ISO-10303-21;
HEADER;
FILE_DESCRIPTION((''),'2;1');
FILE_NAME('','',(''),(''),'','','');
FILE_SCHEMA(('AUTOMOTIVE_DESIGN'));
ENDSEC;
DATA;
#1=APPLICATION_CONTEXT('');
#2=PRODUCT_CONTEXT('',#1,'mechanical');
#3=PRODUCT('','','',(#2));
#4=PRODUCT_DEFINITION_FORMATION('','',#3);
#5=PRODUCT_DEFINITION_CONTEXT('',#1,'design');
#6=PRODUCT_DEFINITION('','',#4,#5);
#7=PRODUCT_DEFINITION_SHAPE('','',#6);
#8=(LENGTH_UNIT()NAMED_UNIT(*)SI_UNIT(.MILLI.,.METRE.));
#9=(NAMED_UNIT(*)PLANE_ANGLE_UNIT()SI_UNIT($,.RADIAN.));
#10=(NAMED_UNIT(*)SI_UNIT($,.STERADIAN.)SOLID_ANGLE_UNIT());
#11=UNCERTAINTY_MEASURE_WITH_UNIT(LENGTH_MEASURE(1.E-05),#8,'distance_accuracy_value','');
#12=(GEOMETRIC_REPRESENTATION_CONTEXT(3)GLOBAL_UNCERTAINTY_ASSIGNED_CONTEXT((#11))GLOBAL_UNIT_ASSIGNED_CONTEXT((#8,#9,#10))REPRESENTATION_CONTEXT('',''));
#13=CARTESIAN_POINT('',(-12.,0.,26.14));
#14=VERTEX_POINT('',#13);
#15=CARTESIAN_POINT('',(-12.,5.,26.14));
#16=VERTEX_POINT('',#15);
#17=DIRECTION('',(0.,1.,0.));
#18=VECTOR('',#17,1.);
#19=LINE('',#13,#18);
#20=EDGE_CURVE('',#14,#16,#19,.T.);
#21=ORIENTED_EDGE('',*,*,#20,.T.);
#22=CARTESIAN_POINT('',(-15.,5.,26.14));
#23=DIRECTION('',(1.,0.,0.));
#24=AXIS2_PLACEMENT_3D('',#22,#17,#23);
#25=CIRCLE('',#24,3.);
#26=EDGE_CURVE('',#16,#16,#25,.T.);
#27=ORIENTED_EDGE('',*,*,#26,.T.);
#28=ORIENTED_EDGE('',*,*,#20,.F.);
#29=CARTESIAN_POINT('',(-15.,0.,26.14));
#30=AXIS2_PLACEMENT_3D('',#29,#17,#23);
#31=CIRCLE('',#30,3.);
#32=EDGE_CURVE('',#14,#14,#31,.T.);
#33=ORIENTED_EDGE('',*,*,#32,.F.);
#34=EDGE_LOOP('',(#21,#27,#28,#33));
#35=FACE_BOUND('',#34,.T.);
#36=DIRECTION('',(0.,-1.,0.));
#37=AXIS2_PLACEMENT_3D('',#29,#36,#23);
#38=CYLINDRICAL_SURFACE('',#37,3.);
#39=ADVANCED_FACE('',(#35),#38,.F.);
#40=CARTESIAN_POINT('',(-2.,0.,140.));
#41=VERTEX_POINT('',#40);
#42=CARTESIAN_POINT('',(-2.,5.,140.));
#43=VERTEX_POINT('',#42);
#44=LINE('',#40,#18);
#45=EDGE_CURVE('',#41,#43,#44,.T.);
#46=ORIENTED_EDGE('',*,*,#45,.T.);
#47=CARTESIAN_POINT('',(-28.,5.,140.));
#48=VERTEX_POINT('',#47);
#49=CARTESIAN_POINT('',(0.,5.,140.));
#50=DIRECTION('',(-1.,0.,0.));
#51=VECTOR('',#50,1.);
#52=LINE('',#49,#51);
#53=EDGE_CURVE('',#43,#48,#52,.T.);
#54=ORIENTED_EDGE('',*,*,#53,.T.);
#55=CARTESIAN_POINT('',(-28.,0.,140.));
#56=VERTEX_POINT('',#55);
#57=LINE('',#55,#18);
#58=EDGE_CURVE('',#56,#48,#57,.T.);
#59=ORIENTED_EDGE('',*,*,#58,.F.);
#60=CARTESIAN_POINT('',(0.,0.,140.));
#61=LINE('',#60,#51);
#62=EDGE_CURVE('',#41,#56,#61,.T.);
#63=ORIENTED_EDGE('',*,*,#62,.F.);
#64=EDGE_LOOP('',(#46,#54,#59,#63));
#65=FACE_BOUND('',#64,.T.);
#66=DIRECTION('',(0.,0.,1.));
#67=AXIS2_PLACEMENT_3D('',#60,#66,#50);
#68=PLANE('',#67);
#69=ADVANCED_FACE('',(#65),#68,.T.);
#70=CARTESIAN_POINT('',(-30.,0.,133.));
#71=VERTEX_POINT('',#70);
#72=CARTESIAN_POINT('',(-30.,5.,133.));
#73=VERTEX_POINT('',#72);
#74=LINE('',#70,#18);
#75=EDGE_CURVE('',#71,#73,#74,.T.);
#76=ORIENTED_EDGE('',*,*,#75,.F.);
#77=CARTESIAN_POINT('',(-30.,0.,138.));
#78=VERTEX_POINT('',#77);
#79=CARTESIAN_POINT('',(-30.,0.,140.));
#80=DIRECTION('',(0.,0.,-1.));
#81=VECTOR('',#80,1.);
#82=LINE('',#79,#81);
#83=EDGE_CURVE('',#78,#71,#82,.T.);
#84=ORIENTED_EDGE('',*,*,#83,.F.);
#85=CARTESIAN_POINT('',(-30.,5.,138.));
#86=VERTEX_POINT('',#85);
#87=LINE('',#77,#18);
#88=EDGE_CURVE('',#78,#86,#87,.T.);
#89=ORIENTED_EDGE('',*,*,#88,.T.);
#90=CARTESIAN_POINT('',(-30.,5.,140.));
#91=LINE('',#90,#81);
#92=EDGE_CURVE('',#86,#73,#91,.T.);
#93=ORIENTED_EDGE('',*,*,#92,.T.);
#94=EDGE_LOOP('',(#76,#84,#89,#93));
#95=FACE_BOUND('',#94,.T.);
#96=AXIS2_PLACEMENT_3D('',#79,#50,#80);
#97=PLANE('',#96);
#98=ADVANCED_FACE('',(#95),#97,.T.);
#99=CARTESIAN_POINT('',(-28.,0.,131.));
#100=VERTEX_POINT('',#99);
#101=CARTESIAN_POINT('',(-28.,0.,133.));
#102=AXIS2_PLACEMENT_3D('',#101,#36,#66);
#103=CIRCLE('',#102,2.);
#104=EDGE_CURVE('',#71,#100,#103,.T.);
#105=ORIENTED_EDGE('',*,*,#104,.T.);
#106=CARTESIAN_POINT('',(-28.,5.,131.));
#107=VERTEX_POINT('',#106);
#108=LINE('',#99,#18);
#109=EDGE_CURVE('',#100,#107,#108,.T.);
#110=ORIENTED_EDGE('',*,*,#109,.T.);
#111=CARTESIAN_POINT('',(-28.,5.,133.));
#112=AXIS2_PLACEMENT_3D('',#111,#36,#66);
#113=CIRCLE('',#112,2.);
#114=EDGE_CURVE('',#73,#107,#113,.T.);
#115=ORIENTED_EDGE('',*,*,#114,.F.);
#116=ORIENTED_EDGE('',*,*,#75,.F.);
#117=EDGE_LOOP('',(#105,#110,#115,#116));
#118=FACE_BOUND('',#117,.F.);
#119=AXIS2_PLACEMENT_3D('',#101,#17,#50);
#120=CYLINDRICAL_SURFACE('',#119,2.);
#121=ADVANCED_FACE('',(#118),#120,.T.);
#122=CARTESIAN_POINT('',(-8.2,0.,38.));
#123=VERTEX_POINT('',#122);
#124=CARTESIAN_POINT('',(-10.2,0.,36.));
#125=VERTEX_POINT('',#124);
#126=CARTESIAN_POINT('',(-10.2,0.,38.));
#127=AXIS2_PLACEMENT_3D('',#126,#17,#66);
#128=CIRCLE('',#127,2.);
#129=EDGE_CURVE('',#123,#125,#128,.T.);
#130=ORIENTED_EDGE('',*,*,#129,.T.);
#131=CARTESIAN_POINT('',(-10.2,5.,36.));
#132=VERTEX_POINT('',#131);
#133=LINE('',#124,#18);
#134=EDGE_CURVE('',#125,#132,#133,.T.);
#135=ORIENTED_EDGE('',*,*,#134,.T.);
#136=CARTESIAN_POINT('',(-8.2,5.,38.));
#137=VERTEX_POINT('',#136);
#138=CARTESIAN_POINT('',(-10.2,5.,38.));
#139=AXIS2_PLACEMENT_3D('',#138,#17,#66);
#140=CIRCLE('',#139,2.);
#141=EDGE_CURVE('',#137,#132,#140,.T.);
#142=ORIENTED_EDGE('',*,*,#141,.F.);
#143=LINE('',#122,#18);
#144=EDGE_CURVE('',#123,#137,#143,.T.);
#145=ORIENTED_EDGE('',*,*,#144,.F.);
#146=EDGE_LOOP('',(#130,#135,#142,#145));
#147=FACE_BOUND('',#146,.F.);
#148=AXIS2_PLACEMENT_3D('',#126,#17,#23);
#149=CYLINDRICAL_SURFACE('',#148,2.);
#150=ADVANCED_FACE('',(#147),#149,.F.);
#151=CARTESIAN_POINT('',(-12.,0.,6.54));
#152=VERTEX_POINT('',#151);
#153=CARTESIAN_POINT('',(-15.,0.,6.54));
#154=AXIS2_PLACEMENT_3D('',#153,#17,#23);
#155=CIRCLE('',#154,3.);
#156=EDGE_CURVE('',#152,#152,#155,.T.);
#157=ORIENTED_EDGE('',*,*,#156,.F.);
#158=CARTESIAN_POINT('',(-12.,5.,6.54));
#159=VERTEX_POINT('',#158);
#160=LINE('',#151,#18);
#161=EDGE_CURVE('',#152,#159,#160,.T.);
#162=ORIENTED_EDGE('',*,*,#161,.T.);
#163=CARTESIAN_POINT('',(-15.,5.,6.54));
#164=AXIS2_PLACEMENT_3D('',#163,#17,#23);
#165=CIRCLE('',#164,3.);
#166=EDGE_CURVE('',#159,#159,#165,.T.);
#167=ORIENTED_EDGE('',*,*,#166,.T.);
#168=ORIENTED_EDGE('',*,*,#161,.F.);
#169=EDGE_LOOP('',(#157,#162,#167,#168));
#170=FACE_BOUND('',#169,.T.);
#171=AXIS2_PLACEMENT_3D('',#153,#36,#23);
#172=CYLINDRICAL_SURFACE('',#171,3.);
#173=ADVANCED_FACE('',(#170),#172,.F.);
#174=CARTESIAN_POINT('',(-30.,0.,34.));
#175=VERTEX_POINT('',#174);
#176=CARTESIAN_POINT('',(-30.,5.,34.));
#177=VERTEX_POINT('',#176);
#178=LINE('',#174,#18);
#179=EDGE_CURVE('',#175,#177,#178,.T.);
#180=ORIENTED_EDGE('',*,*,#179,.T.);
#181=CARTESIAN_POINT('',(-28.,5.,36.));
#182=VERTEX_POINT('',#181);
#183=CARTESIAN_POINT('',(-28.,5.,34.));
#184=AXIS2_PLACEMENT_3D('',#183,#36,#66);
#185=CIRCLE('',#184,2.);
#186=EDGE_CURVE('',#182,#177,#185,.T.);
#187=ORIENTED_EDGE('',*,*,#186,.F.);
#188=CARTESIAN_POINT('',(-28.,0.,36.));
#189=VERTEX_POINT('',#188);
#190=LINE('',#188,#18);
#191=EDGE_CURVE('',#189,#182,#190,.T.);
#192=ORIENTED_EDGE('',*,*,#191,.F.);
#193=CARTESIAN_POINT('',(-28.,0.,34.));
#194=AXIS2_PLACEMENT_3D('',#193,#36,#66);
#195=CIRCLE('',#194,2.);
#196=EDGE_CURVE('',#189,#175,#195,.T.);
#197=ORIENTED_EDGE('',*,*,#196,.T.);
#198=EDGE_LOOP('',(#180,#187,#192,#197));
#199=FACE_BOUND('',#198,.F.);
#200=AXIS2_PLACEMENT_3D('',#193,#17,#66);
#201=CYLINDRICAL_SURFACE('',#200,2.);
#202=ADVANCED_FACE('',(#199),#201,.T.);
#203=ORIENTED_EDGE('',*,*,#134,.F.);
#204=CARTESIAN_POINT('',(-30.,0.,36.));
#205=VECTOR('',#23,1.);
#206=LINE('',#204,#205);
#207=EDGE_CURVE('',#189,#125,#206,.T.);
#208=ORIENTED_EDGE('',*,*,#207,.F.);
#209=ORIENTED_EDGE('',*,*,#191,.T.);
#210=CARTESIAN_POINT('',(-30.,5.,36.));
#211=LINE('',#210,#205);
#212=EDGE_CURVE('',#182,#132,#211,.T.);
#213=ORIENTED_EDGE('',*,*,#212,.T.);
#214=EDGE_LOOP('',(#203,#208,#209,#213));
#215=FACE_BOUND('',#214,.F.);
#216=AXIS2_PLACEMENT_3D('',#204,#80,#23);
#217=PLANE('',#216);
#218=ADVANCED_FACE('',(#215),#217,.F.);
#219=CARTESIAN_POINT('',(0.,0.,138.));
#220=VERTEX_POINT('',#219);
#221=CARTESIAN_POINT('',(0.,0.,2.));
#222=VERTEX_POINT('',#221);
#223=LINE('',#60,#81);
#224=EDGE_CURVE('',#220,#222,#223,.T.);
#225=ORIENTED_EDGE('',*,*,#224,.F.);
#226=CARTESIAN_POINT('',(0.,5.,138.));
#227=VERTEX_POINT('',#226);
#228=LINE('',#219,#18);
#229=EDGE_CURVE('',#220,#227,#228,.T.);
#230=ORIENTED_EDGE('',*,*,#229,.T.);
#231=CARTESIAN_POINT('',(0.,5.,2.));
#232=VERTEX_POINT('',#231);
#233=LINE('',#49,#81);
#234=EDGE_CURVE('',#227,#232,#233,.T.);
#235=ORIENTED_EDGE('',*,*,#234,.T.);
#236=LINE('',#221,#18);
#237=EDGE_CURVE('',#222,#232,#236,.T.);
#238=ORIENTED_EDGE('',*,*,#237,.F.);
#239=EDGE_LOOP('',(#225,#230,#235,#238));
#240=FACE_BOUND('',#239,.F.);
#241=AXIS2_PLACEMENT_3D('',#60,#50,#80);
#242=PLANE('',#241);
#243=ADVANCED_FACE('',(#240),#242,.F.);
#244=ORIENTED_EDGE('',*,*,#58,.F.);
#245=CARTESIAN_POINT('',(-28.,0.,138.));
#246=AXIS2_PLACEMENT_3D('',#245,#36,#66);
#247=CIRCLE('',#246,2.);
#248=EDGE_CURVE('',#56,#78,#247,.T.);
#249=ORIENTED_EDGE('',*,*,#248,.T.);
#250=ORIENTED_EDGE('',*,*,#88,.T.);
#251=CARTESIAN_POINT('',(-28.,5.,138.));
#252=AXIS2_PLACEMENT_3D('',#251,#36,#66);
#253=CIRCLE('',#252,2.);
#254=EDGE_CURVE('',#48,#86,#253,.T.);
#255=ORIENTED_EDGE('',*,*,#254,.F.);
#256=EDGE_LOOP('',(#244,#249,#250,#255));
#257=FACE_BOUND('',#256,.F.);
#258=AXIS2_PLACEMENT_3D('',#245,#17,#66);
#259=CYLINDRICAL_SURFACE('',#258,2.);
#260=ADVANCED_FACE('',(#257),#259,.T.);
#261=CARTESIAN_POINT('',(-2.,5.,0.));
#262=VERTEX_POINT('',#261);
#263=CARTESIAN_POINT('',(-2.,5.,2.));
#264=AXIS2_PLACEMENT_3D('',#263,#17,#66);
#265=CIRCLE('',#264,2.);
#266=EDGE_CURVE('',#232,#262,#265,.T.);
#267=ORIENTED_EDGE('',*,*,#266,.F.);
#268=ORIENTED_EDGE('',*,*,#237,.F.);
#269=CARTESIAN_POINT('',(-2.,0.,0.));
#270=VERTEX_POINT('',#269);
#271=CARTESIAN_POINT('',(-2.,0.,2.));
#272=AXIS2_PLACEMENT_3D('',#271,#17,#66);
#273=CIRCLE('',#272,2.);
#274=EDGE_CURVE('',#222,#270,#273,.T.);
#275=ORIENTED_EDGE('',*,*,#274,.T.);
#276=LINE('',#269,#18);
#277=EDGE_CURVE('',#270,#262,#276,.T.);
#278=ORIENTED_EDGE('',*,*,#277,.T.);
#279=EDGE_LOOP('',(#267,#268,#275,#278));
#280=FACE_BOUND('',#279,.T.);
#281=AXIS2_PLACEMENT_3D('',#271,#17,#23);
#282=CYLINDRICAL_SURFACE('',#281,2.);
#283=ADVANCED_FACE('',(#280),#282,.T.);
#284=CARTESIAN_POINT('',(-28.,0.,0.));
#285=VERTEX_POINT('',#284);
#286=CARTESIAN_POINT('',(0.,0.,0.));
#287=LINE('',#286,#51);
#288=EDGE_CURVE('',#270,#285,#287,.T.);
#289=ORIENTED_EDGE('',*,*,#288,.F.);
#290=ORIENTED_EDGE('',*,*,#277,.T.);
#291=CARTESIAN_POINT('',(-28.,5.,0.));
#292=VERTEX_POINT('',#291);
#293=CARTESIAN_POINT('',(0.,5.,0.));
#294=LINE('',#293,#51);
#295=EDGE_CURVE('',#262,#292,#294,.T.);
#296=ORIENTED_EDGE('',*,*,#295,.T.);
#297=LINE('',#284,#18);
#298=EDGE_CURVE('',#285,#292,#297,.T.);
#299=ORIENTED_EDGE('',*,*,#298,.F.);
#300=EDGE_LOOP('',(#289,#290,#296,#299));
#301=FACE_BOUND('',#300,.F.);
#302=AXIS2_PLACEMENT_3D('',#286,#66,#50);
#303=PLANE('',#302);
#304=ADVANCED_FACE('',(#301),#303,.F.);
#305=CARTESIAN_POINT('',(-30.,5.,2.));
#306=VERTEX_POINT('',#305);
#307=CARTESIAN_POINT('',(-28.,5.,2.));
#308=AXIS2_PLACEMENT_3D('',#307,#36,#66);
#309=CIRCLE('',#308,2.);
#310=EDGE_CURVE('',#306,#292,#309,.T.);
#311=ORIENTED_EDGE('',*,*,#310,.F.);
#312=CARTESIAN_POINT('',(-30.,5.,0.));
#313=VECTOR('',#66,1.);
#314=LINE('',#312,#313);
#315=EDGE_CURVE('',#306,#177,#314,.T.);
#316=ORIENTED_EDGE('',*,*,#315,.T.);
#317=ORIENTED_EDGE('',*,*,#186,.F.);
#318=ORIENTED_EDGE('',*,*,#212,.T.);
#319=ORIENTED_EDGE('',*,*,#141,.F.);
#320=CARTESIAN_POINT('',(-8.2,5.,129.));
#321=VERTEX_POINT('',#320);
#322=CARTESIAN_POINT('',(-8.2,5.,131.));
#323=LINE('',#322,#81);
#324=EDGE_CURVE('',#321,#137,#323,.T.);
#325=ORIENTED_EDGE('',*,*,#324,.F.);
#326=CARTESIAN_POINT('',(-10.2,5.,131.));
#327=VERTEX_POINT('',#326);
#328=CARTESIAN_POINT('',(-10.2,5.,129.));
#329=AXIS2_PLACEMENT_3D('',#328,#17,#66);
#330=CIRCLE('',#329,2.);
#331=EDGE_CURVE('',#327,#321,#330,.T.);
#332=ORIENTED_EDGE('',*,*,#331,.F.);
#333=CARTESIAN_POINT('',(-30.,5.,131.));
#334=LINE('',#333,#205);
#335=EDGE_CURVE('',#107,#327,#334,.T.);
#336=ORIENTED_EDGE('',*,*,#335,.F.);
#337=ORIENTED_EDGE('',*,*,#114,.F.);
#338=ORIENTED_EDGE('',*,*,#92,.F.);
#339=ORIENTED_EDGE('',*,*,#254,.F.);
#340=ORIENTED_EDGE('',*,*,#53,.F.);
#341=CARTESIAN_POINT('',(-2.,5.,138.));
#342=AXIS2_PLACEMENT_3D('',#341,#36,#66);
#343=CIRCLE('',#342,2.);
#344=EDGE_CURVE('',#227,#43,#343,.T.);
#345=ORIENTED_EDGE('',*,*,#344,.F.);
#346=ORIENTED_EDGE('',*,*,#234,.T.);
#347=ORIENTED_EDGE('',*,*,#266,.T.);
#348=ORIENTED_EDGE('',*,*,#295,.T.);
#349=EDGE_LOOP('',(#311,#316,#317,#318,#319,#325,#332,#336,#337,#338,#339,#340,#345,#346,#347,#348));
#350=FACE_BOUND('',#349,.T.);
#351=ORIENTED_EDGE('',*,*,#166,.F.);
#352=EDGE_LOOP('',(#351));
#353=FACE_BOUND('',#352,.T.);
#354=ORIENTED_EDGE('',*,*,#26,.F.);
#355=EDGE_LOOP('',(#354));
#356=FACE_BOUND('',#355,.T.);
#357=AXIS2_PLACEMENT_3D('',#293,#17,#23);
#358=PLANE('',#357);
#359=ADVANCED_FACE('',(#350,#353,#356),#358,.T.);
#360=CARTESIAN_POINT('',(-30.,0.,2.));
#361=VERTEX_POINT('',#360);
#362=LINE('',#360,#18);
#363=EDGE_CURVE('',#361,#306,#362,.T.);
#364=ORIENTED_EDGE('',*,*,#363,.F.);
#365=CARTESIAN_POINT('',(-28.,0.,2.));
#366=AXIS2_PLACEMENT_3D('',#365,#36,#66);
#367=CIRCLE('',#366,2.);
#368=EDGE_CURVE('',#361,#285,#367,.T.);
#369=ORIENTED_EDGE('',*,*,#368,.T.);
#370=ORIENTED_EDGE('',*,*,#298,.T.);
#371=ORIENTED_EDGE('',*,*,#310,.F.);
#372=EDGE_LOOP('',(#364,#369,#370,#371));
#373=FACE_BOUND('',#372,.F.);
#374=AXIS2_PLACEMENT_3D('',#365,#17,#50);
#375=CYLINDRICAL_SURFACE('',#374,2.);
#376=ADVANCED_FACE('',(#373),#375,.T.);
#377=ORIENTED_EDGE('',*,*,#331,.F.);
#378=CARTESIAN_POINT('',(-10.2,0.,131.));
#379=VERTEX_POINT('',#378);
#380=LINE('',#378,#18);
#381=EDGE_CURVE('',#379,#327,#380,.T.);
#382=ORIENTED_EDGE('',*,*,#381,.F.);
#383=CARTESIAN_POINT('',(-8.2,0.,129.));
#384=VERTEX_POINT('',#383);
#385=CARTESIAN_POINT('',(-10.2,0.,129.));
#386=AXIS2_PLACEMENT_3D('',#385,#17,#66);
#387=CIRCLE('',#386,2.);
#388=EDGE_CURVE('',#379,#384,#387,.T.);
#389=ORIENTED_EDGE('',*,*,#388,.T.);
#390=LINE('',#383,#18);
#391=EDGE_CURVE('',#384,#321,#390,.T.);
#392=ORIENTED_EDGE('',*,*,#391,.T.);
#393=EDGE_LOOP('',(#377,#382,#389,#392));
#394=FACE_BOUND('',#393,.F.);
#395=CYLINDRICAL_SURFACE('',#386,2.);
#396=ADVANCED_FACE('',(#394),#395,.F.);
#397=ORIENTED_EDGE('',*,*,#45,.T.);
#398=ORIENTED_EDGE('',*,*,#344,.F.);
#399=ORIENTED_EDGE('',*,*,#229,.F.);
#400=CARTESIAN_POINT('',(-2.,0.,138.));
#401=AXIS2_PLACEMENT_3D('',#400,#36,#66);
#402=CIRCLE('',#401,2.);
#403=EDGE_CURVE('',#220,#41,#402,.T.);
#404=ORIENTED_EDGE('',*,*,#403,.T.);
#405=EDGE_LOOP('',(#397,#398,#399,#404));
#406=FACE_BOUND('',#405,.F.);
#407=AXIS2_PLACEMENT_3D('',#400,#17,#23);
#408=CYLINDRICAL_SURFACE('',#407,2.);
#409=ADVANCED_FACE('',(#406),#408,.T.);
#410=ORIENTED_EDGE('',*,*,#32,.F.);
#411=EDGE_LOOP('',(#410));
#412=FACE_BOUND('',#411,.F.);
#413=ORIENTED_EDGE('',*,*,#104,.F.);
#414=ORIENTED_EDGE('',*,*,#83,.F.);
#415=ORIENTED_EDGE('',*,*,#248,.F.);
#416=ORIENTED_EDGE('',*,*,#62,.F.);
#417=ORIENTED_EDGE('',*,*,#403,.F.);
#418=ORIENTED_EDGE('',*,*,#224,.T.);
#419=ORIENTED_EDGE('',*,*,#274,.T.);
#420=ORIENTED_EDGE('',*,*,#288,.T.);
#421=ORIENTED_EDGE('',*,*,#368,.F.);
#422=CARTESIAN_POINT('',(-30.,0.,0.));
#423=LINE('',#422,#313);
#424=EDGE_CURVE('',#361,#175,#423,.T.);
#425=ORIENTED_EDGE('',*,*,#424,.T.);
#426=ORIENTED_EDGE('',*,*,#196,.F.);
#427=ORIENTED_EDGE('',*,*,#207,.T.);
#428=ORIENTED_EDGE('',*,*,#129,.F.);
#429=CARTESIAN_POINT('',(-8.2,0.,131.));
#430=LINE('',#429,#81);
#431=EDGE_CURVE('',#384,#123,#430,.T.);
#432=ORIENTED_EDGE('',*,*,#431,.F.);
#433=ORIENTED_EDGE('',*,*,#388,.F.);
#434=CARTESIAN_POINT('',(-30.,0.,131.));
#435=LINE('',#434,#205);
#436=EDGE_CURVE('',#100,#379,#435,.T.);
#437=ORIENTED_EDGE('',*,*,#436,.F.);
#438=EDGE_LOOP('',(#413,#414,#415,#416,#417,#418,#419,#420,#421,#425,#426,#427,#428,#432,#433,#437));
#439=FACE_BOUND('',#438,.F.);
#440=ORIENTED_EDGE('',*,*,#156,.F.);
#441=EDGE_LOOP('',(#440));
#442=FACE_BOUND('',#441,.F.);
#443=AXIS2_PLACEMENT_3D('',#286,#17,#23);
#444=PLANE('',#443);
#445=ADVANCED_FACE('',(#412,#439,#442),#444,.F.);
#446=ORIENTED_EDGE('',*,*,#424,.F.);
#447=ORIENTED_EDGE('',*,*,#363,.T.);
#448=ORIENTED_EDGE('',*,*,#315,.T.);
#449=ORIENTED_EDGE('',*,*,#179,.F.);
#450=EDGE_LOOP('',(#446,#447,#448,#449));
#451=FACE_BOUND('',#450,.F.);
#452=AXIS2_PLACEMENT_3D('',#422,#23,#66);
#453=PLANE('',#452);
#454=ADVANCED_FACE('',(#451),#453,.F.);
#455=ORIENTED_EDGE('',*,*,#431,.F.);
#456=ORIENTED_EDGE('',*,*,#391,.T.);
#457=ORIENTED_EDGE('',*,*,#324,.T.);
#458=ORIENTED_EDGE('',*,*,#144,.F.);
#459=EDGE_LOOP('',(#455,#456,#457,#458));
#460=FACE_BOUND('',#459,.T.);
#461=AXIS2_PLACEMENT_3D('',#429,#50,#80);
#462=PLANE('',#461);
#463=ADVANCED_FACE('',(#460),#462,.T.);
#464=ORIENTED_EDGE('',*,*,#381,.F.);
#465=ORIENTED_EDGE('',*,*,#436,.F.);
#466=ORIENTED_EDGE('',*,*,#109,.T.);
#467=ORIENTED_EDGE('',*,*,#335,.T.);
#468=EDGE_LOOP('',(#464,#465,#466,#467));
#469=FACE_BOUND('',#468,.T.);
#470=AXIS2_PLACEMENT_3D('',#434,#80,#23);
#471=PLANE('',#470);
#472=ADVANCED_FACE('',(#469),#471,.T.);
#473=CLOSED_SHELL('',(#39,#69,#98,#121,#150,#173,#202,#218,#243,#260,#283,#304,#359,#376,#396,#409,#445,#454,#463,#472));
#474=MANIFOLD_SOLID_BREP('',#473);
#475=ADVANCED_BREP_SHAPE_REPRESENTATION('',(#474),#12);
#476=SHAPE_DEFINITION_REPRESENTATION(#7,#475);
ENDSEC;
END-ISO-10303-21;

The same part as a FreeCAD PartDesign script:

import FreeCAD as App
import Part
import Sketcher

V = App.Vector
Q = App.Units.Quantity


def edges_at(feature, points):
    """Names of the edges that pass closest to the given points."""
    edges = feature.Shape.Edges
    near = lambda p: min(range(len(edges)), key=lambda i: edges[i].distToShape(Part.Vertex(*p))[0])
    return sorted({f"Edge{near(p) + 1}" for p in points})


def add_polygon(sketch, points):
    """Adds a closed chain of lines whose ends are joined by coincident constraints."""
    first, n = sketch.GeometryCount, len(points)
    for a, b in zip(points, points[1:] + points[:1]):
        sketch.addGeometry(Part.LineSegment(App.Vector(*a, 0), App.Vector(*b, 0)), False)
    for i in range(n):
        sketch.addConstraint(Sketcher.Constraint("Coincident", first + i, 2, first + (i + 1) % n, 1))

doc = App.newDocument("Part")
params = doc.addObject("Spreadsheet::Sheet", "Params")
for row, (alias, value) in enumerate([
    ("sketch1_diameter", "6 mm"),
    ("sketch1_width", "30 mm"),
    ("sketch1_height", "140 mm"),
    ("sketch1_height2", "36 mm"),
    ("sketch1_height3", "9 mm"),
    ("pad1_length", "5 mm"),
    ("fillet_radius", "2 mm"),
], start=1):
    params.set(f"A{row}", alias)
    params.set(f"B{row}", "=" + value)
    params.setAlias(f"B{row}", alias)

body = doc.addObject("PartDesign::Body", "Body")

sketch1 = doc.addObject("Sketcher::SketchObject", "Sketch")
body.addObject(sketch1)
sketch1.AttachmentSupport = (doc.XZ_Plane, [""])
sketch1.MapMode = "FlatFace"
add_polygon(sketch1, [(0, 140), (0, 0), (-30, 0), (-30, 36), (-8.2, 36), (-8.2, 131), (-30, 131), (-30, 140)])
sketch1.addGeometry(Part.Circle(V(-15, 26.1, 0), V(0, 0, 1), 3), False)
sketch1.addGeometry(Part.Circle(V(-15, 6.5, 0), V(0, 0, 1), 3), False)
sketch1.addConstraint(Sketcher.Constraint("Vertical", 0))
sketch1.addConstraint(Sketcher.Constraint("Horizontal", 1))
sketch1.addConstraint(Sketcher.Constraint("Vertical", 2))
sketch1.addConstraint(Sketcher.Constraint("Horizontal", 3))
sketch1.addConstraint(Sketcher.Constraint("Vertical", 4))
sketch1.addConstraint(Sketcher.Constraint("Horizontal", 5))
sketch1.addConstraint(Sketcher.Constraint("Vertical", 6))
sketch1.addConstraint(Sketcher.Constraint("Horizontal", 7))
sketch1.addConstraint(Sketcher.Constraint("Coincident", 0, 2, -1, 1))
sketch1.addConstraint(Sketcher.Constraint("Equal", 8, 9))
sketch1.addConstraint(Sketcher.Constraint("Vertical", 8, 3, 9, 3))
sketch1.addConstraint(Sketcher.Constraint("Vertical", 2, 2, 5, 2))
sketch1.addConstraint(Sketcher.Constraint("Diameter", 8, Q("6 mm")))
sketch1.addConstraint(Sketcher.Constraint("DistanceX", 1, 2, 1, 1, Q("30 mm")))
sketch1.addConstraint(Sketcher.Constraint("DistanceY", 0, 2, 0, 1, Q("140 mm")))
sketch1.addConstraint(Sketcher.Constraint("DistanceY", 2, 1, 2, 2, Q("36 mm")))
sketch1.addConstraint(Sketcher.Constraint("DistanceY", 6, 1, 6, 2, Q("9 mm")))
sketch1.addConstraint(Sketcher.Constraint("DistanceX", 8, 3, -1, 1, Q("15 mm")))
sketch1.addConstraint(Sketcher.Constraint("DistanceX", 3, 2, -1, 1, Q("8.2 mm")))
sketch1.addConstraint(Sketcher.Constraint("DistanceY", 9, 3, 8, 3, Q("19.6 mm")))
sketch1.addConstraint(Sketcher.Constraint("DistanceY", 8, 3, 2, 2, Q("9.86 mm")))
sketch1.setExpression("Constraints[20]", "Params.sketch1_diameter")
sketch1.setExpression("Constraints[21]", "Params.sketch1_width")
sketch1.setExpression("Constraints[22]", "Params.sketch1_height")
sketch1.setExpression("Constraints[23]", "Params.sketch1_height2")
sketch1.setExpression("Constraints[24]", "Params.sketch1_height3")
pad1 = doc.addObject("PartDesign::Pad", "Pad")
body.addObject(pad1)
pad1.Profile = sketch1
pad1.setExpression("Length", "Params.pad1_length")
pad1.Reversed = True
doc.recompute()

fillet = doc.addObject("PartDesign::Fillet", "Fillet")
body.addObject(fillet)
fillet.Base = (pad1, edges_at(pad1, [
    (-8.2, 2.5, 131),
    (-8.2, 2.5, 36),
    (-30, 2.5, 36),
    (-30, 2.5, 0),
    (0, 2.5, 0),
    (0, 2.5, 140),
    (-30, 2.5, 140),
    (-30, 2.5, 131),
]))
fillet.setExpression("Radius", "Params.fillet_radius")

doc.recompute()
